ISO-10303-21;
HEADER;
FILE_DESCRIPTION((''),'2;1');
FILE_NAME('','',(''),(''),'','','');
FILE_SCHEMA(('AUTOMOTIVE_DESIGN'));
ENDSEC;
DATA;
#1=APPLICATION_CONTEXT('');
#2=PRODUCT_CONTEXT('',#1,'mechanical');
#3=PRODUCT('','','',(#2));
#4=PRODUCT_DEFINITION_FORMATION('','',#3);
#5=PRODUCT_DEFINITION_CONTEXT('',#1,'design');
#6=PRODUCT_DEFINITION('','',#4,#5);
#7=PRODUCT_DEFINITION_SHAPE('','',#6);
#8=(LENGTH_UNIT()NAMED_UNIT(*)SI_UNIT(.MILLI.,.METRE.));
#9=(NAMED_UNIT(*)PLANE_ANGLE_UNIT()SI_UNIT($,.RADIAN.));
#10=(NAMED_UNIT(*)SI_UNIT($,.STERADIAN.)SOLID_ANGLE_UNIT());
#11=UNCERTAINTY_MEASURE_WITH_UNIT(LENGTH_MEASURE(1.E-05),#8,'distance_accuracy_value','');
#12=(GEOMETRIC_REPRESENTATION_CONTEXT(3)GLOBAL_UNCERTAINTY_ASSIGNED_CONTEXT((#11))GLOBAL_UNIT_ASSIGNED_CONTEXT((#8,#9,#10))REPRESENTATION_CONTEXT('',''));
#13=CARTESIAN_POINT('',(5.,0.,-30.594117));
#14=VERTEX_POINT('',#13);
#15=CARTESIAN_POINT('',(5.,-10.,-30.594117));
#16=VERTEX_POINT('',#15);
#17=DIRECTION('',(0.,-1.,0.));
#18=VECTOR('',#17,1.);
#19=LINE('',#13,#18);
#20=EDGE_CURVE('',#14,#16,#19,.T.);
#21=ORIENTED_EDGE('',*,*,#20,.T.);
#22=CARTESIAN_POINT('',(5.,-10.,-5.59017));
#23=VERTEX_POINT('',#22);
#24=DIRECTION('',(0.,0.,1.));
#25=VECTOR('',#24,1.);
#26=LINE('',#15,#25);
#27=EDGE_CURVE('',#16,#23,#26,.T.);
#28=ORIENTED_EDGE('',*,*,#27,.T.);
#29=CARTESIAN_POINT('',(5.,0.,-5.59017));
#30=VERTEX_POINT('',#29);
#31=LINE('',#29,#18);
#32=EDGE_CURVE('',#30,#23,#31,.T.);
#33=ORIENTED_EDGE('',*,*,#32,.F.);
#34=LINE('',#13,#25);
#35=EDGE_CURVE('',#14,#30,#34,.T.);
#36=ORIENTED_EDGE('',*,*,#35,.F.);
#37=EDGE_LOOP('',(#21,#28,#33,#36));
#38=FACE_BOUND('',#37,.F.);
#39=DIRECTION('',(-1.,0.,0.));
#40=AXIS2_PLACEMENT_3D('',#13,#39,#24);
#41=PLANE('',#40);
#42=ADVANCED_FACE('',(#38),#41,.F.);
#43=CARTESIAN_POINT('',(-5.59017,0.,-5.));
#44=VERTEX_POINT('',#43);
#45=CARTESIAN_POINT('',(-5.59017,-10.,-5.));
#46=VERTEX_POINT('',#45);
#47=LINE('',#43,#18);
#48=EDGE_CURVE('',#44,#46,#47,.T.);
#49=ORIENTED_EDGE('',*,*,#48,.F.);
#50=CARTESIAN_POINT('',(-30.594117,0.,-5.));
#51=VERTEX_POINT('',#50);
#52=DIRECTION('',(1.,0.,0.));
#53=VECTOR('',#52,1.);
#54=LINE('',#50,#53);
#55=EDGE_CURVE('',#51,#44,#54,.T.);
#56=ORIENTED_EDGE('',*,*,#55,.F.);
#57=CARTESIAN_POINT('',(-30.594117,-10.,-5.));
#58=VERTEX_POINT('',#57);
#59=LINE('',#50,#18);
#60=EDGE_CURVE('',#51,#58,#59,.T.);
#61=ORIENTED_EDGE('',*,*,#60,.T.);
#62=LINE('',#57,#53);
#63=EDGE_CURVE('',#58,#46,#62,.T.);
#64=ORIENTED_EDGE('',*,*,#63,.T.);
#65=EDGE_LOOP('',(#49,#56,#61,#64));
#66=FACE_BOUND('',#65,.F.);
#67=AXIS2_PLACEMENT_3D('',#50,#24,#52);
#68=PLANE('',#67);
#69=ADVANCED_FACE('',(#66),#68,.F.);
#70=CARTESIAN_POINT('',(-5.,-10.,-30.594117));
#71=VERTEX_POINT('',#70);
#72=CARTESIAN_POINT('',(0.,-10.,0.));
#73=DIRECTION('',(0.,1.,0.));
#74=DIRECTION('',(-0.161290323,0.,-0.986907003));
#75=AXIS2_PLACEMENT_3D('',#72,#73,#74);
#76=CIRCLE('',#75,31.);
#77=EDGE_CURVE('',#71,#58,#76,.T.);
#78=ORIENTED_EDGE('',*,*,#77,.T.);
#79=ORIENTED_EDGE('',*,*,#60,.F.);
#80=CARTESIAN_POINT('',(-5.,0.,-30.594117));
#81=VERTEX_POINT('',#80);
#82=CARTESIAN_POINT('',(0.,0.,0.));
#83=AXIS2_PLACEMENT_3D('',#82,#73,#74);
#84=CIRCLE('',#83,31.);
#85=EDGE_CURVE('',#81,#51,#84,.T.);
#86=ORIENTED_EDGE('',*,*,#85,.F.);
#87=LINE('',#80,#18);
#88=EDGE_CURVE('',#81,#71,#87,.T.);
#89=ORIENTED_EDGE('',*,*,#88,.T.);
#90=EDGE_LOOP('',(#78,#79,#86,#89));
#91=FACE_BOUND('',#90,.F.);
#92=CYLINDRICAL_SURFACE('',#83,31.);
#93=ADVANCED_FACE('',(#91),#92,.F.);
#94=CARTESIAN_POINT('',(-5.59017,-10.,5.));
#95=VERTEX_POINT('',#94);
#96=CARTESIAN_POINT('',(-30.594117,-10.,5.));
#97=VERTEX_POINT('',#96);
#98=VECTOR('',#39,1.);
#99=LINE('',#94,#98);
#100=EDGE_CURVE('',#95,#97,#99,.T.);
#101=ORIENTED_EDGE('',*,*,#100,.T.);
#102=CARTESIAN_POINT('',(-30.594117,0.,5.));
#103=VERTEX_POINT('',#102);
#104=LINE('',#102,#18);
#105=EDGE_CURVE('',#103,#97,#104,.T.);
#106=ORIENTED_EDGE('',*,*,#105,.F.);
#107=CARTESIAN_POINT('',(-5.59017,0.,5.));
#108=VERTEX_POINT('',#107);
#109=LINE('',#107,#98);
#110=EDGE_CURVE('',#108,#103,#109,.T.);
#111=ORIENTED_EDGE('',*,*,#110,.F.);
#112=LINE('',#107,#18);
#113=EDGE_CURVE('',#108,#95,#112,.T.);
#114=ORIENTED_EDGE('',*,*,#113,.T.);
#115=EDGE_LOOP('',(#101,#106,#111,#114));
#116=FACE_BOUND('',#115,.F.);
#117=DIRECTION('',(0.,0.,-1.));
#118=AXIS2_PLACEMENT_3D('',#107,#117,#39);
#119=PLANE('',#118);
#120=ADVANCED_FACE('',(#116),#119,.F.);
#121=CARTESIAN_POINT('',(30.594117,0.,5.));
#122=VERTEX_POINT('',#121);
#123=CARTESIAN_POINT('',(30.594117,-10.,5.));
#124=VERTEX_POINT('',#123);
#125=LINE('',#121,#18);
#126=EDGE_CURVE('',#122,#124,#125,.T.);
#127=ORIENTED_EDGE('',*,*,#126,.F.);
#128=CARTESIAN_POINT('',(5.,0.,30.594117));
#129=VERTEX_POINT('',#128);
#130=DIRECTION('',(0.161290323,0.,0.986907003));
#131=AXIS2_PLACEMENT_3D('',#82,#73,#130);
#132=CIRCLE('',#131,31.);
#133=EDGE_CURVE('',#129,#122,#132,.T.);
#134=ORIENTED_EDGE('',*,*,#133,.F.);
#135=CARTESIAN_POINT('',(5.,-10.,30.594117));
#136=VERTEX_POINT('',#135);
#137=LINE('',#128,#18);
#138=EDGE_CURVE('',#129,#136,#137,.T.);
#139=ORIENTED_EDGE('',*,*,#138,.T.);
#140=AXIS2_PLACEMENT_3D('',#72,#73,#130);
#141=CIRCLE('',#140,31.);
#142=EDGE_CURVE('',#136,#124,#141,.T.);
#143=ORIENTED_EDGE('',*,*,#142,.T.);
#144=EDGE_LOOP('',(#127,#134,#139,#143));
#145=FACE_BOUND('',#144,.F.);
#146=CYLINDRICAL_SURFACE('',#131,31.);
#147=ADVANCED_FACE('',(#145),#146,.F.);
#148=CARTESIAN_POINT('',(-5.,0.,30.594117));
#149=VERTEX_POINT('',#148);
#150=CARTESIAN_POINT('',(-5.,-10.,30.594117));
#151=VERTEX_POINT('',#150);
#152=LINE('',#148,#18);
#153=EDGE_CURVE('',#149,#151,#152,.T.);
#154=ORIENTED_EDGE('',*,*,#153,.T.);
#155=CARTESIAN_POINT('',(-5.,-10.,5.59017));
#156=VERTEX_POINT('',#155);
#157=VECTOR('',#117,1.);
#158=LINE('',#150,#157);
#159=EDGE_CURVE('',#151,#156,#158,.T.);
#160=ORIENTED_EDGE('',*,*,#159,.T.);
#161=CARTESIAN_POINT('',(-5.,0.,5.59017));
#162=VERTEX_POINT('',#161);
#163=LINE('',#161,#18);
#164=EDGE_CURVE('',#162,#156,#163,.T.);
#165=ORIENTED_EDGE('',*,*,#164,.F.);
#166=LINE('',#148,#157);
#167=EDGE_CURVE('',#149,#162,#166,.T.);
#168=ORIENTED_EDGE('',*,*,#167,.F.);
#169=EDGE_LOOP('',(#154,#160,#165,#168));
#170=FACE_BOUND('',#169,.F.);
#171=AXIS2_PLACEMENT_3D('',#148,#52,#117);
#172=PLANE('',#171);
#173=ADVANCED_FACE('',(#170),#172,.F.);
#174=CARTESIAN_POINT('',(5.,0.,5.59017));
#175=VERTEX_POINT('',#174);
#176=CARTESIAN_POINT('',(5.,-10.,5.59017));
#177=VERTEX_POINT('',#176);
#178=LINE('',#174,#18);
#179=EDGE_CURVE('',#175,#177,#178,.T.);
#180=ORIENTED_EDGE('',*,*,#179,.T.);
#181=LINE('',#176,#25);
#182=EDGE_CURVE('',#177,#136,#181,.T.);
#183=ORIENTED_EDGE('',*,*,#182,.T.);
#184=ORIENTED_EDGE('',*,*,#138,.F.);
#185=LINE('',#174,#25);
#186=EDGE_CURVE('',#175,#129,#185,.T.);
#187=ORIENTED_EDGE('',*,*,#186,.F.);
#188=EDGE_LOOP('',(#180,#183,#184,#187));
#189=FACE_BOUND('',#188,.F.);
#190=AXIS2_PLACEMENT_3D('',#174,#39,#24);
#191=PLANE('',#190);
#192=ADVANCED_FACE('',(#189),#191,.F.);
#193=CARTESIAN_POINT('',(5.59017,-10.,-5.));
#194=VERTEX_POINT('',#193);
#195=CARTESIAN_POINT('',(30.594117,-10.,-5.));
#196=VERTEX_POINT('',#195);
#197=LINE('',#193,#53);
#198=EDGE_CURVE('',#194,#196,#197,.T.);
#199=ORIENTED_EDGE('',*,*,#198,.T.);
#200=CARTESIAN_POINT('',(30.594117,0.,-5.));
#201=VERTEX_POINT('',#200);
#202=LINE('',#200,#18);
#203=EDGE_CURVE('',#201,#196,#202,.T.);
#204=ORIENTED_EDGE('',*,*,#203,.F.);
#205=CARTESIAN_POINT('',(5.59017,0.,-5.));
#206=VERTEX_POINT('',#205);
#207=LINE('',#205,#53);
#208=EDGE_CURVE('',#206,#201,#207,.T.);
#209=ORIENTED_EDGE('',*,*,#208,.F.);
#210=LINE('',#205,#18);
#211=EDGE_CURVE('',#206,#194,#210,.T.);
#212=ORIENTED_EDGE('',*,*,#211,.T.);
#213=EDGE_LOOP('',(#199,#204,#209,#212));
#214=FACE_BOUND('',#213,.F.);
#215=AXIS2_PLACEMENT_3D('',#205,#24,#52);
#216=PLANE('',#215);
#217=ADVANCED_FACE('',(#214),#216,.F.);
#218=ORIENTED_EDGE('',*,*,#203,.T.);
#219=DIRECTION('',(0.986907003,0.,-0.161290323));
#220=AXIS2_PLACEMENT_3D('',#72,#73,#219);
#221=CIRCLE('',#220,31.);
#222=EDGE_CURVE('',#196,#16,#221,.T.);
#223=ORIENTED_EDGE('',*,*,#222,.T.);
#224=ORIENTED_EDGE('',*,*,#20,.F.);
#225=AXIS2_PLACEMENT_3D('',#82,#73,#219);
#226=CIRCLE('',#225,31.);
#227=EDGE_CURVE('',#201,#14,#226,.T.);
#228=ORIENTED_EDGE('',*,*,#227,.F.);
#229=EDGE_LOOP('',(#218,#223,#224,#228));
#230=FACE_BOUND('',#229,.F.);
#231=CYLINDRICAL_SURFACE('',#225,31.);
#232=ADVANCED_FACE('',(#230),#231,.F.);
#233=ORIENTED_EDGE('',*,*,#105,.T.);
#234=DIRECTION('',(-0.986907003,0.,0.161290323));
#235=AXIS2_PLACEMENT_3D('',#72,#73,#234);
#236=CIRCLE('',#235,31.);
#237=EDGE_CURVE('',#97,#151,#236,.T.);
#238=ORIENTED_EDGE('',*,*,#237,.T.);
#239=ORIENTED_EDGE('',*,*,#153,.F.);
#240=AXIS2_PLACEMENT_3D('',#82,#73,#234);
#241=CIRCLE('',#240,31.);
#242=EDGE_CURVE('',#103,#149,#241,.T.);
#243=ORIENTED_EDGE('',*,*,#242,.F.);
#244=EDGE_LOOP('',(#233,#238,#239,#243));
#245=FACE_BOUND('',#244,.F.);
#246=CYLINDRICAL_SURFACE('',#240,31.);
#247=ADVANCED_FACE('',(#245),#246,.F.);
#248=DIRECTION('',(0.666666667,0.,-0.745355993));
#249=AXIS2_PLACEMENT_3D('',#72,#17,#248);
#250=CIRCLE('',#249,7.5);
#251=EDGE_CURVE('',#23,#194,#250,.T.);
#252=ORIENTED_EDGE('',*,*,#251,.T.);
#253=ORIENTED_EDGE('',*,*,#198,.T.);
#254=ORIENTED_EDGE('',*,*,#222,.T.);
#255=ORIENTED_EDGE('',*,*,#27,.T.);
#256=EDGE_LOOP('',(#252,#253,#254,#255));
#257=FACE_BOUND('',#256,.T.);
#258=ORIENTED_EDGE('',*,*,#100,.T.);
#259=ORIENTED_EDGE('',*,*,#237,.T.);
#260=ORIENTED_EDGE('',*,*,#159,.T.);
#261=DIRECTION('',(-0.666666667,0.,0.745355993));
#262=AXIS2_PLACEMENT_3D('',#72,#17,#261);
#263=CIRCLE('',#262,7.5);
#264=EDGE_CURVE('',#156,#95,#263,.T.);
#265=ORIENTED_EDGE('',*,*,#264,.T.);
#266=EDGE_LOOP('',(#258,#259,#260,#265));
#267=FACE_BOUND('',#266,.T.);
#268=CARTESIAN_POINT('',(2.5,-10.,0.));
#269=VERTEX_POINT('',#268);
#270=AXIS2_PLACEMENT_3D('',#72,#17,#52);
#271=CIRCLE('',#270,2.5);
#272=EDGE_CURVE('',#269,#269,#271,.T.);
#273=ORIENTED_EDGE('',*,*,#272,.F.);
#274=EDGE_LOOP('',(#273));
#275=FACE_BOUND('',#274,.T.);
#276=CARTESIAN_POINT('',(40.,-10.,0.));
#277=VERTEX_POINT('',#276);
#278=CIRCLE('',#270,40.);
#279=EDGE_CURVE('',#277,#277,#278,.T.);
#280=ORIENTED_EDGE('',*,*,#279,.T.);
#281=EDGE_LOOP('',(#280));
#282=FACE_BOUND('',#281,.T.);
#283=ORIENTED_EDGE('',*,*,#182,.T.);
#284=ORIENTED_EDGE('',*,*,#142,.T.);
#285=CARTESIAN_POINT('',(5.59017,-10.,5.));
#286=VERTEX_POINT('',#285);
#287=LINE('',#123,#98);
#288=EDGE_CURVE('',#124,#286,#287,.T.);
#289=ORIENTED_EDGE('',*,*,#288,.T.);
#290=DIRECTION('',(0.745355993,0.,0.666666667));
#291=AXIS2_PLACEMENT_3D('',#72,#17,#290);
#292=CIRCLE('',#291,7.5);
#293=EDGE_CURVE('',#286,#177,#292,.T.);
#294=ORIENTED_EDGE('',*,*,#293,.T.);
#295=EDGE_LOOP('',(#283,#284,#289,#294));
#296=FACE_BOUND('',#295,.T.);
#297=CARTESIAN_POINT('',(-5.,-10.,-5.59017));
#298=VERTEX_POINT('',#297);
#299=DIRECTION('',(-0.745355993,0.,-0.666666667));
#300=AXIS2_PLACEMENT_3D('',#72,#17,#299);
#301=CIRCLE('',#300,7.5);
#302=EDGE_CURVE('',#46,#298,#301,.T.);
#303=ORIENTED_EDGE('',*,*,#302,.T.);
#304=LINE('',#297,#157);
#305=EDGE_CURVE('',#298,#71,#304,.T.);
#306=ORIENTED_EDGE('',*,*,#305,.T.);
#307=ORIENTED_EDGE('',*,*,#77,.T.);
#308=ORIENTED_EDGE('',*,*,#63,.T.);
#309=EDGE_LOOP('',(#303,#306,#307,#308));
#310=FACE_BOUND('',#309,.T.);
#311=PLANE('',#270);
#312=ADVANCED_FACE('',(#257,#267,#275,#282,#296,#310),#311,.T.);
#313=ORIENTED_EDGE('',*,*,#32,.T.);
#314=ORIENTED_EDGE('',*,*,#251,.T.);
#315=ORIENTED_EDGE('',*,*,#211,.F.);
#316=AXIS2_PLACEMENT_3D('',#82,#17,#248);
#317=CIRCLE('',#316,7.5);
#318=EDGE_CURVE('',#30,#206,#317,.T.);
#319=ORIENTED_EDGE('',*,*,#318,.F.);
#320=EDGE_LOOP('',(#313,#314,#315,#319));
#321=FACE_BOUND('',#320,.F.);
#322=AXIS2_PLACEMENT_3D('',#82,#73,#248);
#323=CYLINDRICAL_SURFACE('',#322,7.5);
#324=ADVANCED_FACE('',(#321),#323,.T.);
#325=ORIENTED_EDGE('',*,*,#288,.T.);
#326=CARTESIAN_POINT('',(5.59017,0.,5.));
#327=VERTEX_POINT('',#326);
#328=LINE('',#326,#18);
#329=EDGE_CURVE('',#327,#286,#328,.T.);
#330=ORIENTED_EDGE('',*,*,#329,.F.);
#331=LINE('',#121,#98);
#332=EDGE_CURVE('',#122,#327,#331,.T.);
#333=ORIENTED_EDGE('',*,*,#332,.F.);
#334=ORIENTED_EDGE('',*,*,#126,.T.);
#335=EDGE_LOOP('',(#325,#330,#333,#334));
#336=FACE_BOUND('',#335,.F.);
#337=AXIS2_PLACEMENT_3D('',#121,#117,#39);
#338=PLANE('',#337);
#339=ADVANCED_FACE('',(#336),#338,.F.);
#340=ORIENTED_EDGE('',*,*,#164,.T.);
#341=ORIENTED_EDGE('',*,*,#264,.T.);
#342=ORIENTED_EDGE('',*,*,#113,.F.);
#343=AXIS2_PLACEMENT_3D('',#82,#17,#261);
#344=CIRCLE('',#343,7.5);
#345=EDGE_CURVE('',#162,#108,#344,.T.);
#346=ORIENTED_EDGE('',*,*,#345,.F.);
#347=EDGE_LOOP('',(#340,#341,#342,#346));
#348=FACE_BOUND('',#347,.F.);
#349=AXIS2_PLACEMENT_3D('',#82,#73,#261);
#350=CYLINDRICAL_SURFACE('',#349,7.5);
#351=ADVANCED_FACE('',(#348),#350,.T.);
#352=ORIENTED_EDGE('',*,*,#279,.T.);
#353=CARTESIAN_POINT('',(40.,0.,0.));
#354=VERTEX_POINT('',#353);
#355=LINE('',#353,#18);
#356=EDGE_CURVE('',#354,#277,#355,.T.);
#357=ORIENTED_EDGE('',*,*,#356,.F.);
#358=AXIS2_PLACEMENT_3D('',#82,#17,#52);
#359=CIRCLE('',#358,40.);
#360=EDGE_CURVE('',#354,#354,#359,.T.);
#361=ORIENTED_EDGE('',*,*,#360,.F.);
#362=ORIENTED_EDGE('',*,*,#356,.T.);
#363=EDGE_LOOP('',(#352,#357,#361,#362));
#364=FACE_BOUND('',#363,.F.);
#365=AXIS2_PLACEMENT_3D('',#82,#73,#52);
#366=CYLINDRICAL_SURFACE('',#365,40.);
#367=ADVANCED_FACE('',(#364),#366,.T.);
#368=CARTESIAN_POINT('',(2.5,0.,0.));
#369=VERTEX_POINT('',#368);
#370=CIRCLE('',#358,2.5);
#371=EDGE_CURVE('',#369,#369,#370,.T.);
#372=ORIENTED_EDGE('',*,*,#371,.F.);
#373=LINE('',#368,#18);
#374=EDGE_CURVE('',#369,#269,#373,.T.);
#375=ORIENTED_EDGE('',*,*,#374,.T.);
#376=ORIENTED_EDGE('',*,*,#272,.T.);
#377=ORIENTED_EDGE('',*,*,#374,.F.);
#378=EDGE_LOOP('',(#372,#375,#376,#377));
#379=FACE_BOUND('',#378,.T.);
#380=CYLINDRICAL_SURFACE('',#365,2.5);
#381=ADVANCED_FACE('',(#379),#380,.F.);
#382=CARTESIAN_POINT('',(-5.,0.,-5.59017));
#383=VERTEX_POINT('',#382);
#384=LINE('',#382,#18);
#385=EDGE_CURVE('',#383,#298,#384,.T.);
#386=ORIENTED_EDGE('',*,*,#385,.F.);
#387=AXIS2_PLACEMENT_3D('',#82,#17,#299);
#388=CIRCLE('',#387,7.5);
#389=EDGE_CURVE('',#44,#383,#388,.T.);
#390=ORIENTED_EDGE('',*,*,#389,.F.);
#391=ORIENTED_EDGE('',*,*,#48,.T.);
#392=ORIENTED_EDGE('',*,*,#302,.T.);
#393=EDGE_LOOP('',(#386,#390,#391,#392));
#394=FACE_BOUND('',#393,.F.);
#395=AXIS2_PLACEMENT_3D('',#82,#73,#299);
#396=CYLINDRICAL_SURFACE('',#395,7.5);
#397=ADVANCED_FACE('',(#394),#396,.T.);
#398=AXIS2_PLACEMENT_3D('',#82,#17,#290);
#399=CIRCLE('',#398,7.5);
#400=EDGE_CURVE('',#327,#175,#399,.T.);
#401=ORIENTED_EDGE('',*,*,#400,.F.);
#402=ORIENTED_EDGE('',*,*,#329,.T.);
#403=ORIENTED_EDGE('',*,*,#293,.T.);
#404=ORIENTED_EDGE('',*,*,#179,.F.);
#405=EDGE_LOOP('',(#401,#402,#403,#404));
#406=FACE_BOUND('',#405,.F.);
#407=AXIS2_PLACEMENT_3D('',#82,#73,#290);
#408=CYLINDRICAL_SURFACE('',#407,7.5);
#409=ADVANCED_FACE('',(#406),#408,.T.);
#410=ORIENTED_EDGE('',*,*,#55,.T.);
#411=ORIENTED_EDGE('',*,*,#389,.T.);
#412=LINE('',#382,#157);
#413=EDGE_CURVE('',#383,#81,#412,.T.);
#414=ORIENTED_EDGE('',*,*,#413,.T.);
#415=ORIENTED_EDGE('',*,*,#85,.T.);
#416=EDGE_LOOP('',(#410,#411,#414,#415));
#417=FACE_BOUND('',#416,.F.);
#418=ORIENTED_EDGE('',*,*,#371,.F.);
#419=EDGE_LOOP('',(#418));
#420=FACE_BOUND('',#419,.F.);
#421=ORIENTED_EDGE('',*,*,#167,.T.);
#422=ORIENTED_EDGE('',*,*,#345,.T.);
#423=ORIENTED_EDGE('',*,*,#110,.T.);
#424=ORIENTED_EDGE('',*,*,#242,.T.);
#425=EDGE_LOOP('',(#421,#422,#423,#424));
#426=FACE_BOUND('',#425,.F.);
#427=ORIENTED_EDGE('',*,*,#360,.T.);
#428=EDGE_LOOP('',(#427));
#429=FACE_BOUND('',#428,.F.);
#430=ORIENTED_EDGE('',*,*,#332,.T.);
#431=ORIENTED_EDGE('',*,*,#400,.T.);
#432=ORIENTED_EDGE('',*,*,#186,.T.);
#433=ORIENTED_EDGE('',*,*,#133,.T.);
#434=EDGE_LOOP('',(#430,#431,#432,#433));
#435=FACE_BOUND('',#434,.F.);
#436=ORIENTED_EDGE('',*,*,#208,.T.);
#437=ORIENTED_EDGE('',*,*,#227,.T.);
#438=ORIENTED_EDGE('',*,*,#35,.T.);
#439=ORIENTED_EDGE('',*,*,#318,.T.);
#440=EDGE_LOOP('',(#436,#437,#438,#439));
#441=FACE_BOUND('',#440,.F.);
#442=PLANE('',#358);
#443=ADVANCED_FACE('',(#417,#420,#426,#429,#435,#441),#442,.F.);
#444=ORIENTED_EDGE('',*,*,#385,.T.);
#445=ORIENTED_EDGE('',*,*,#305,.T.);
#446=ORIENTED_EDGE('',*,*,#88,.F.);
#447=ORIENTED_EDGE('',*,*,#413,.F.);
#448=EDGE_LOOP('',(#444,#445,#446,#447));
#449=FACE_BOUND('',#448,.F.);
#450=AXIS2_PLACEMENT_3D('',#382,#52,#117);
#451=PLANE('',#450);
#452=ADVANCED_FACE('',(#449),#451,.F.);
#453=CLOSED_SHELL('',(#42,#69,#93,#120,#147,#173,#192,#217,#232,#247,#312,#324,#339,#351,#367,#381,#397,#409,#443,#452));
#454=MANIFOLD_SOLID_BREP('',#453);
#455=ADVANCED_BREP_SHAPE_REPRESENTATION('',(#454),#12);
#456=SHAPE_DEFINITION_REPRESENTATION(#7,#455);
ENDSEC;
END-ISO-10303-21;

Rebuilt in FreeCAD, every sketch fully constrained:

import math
import FreeCAD as App
import Part
import Sketcher

doc = App.newDocument("Part")
body = doc.addObject("PartDesign::Body", "Body")

# Sketch on XZ plane
sketch1 = body.newObject("Sketcher::SketchObject", "Sketch")
sketch1.AttachmentSupport = (doc.getObject("XZ_Plane"), [""])
sketch1.MapMode = "FlatFace"
sketch1.addGeometry([
    Part.Circle(App.Vector(0, 0, 0), App.Vector(0, 0, 1), 40),  # 0
    Part.ArcOfCircle(Part.Circle(App.Vector(0, 0, 0), App.Vector(0, 0, 1), 31), math.radians(-171), math.radians(-99)),  # 1
    Part.LineSegment(App.Vector(-30.6, -5, 0), App.Vector(-5.6, -5, 0)),  # 2
    Part.ArcOfCircle(Part.Circle(App.Vector(0, 0, 0), App.Vector(0, 0, 1), 7.5), math.radians(-138.19), math.radians(-131.81)),  # 3
    Part.LineSegment(App.Vector(-5, -5.6, 0), App.Vector(-5, -30.6, 0)),  # 4
    Part.LineSegment(App.Vector(5, -30.6, 0), App.Vector(5, -5.6, 0)),  # 5
    Part.ArcOfCircle(Part.Circle(App.Vector(0, 0, 0), App.Vector(0, 0, 1), 7.5), math.radians(-48.19), math.radians(-41.81)),  # 6
    Part.LineSegment(App.Vector(5.6, -5, 0), App.Vector(30.6, -5, 0)),  # 7
    Part.ArcOfCircle(Part.Circle(App.Vector(0, 0, 0), App.Vector(0, 0, 1), 31), math.radians(-81), math.radians(-9)),  # 8
    Part.LineSegment(App.Vector(-5.6, 5, 0), App.Vector(-30.6, 5, 0)),  # 9
    Part.ArcOfCircle(Part.Circle(App.Vector(0, 0, 0), App.Vector(0, 0, 1), 31), math.radians(99), math.radians(171)),  # 10
    Part.LineSegment(App.Vector(-5, 30.6, 0), App.Vector(-5, 5.6, 0)),  # 11
    Part.ArcOfCircle(Part.Circle(App.Vector(0, 0, 0), App.Vector(0, 0, 1), 7.5), math.radians(131.81), math.radians(138.19)),  # 12
    Part.Circle(App.Vector(0, 0, 0), App.Vector(0, 0, 1), 2.5),  # 13
    Part.ArcOfCircle(Part.Circle(App.Vector(0, 0, 0), App.Vector(0, 0, 1), 31), math.radians(9), math.radians(81)),  # 14
    Part.LineSegment(App.Vector(30.6, 5, 0), App.Vector(5.6, 5, 0)),  # 15
    Part.ArcOfCircle(Part.Circle(App.Vector(0, 0, 0), App.Vector(0, 0, 1), 7.5), math.radians(41.81), math.radians(48.19)),  # 16
    Part.LineSegment(App.Vector(5, 5.6, 0), App.Vector(5, 30.6, 0)),  # 17
], False)
sketch1.addConstraint([
    Sketcher.Constraint("Coincident", 1, 1, 2, 1),
    Sketcher.Constraint("Coincident", 2, 2, 3, 1),
    Sketcher.Constraint("Coincident", 3, 2, 4, 1),
    Sketcher.Constraint("Coincident", 4, 2, 1, 2),
    Sketcher.Constraint("Coincident", 5, 2, 6, 1),
    Sketcher.Constraint("Coincident", 6, 2, 7, 1),
    Sketcher.Constraint("Coincident", 7, 2, 8, 2),
    Sketcher.Constraint("Coincident", 8, 1, 5, 1),
    Sketcher.Constraint("Coincident", 9, 2, 10, 2),
    Sketcher.Constraint("Coincident", 10, 1, 11, 1),
    Sketcher.Constraint("Coincident", 11, 2, 12, 1),
    Sketcher.Constraint("Coincident", 12, 2, 9, 1),
    Sketcher.Constraint("Coincident", 14, 1, 15, 1),
    Sketcher.Constraint("Coincident", 15, 2, 16, 1),
    Sketcher.Constraint("Coincident", 16, 2, 17, 1),
    Sketcher.Constraint("Coincident", 17, 2, 14, 2),
    Sketcher.Constraint("Horizontal", 2),
    Sketcher.Constraint("Vertical", 4),
    Sketcher.Constraint("Vertical", 5),
    Sketcher.Constraint("Horizontal", 7),
    Sketcher.Constraint("Horizontal", 9),
    Sketcher.Constraint("Vertical", 11),
    Sketcher.Constraint("Horizontal", 15),
    Sketcher.Constraint("Vertical", 17),
    Sketcher.Constraint("Coincident", 0, 3, -1, 1),
    Sketcher.Constraint("Coincident", 1, 3, -1, 1),
    Sketcher.Constraint("Coincident", 3, 3, -1, 1),
    Sketcher.Constraint("Coincident", 6, 3, -1, 1),
    Sketcher.Constraint("Coincident", 8, 3, -1, 1),
    Sketcher.Constraint("Coincident", 10, 3, -1, 1),
    Sketcher.Constraint("Coincident", 12, 3, -1, 1),
    Sketcher.Constraint("Coincident", 13, 3, -1, 1),
    Sketcher.Constraint("Coincident", 14, 3, -1, 1),
    Sketcher.Constraint("Coincident", 16, 3, -1, 1),
    Sketcher.Constraint("Equal", 3, 6),
    Sketcher.Constraint("Equal", 1, 8),
    Sketcher.Constraint("Equal", 8, 10),
    Sketcher.Constraint("Equal", 6, 12),
    Sketcher.Constraint("Equal", 10, 14),
    Sketcher.Constraint("Equal", 12, 16),
    Sketcher.Constraint("Horizontal", 3, 2, 5, 2),
    Sketcher.Constraint("Horizontal", 2, 2, 6, 2),
    Sketcher.Constraint("Horizontal", 12, 2, 14, 1),
    Sketcher.Constraint("Horizontal", 11, 2, 16, 2),
    Sketcher.Constraint("Vertical", 1, 1, 9, 2),
    Sketcher.Constraint("Vertical", 4, 2, 10, 1),
    Sketcher.Constraint("Equal", 15, 4),
    Sketcher.Constraint("Diameter", 0, 80.0),
    Sketcher.Constraint("Diameter", 13, 5.0),
    Sketcher.Constraint("Radius", 1, 31.0),
    Sketcher.Constraint("Radius", 3, 7.5),
    Sketcher.Constraint("DistanceY", 1, 1, -1, 1, 5.0),
])
pad1 = body.newObject("PartDesign::Pad", "Pad")
pad1.Profile = sketch1
pad1.Length = 10

doc.recompute()
